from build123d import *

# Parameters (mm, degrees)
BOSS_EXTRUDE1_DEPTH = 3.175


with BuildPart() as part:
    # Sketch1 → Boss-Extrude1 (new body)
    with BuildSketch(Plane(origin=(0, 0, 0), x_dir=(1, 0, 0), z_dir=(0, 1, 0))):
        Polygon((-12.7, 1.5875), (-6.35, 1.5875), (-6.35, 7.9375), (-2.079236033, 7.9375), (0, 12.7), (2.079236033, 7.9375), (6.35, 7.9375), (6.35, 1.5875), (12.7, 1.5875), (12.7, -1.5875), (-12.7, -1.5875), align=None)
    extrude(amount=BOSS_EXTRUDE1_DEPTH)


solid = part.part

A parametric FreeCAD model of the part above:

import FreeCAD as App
import Part
import Sketcher
from FreeCAD import Vector
Q = App.Units.Quantity

doc = App.newDocument("Part")
body = doc.addObject("PartDesign::Body", "Body")

# Sketch on XZ plane
sketch1 = doc.addObject("Sketcher::SketchObject", "Sketch")
body.addObject(sketch1)
sketch1.AttachmentSupport = (doc.XZ_Plane, [""])
sketch1.MapMode = "FlatFace"
sketch1.addGeometry([
    Part.LineSegment(Vector(-6.3, -1.6, 0), Vector(-12.7, -1.6, 0)),  # 0
    Part.LineSegment(Vector(-12.7, -1.6, 0), Vector(-12.7, 1.6, 0)),  # 1
    Part.LineSegment(Vector(-12.7, 1.6, 0), Vector(12.7, 1.6, 0)),  # 2
    Part.LineSegment(Vector(12.7, 1.6, 0), Vector(12.7, -1.6, 0)),  # 3
    Part.LineSegment(Vector(12.7, -1.6, 0), Vector(6.3, -1.6, 0)),  # 4
    Part.LineSegment(Vector(6.3, -1.6, 0), Vector(6.3, -7.9, 0)),  # 5
    Part.LineSegment(Vector(6.3, -7.9, 0), Vector(2.1, -7.9, 0)),  # 6
    Part.LineSegment(Vector(2.1, -7.9, 0), Vector(0, -12.7, 0)),  # 7
    Part.LineSegment(Vector(0, -12.7, 0), Vector(-2.1, -7.9, 0)),  # 8
    Part.LineSegment(Vector(-2.1, -7.9, 0), Vector(-6.3, -7.9, 0)),  # 9
    Part.LineSegment(Vector(-6.3, -7.9, 0), Vector(-6.3, -1.6, 0)),  # 10
], False)
sketch1.addConstraint([
    Sketcher.Constraint("Coincident", 0, 2, 1, 1),
    Sketcher.Constraint("Coincident", 1, 2, 2, 1),
    Sketcher.Constraint("Coincident", 2, 2, 3, 1),
    Sketcher.Constraint("Coincident", 3, 2, 4, 1),
    Sketcher.Constraint("Coincident", 4, 2, 5, 1),
    Sketcher.Constraint("Coincident", 5, 2, 6, 1),
    Sketcher.Constraint("Coincident", 6, 2, 7, 1),
    Sketcher.Constraint("Coincident", 7, 2, 8, 1),
    Sketcher.Constraint("Coincident", 8, 2, 9, 1),
    Sketcher.Constraint("Coincident", 9, 2, 10, 1),
    Sketcher.Constraint("Coincident", 10, 2, 0, 1),
    Sketcher.Constraint("Horizontal", 0),
    Sketcher.Constraint("Vertical", 1),
    Sketcher.Constraint("Horizontal", 2),
    Sketcher.Constraint("Vertical", 3),
    Sketcher.Constraint("Horizontal", 4),
    Sketcher.Constraint("Vertical", 5),
    Sketcher.Constraint("Horizontal", 6),
    Sketcher.Constraint("Horizontal", 9),
    Sketcher.Constraint("Vertical", 10),
    Sketcher.Constraint("Symmetric", 0, 2, 2, 2, -1, 1),
    Sketcher.Constraint("Symmetric", 6, 2, 8, 2, -2),
    Sketcher.Constraint("Symmetric", 4, 2, 10, 2, -2),
    Sketcher.Constraint("PointOnObject", 7, 2, -2),
    Sketcher.Constraint("Equal", 4, 5),
    Sketcher.Constraint("DistanceX", 2, 1, 2, 2, Q("1 in")),
    Sketcher.Constraint("DistanceX", 0, 2, 0, 1, Q("0.25 in")),
    Sketcher.Constraint("DistanceY", 7, 2, -1, 1, Q("0.5 in")),
    Sketcher.Constraint("DistanceY", 1, 1, 1, 2, Q("0.125 in")),
    Sketcher.Constraint("DistanceX", 6, 2, 6, 1, 4.270764),
])
pad1 = doc.addObject("PartDesign::Pad", "Pad")
body.addObject(pad1)
pad1.Profile = sketch1
pad1.Length = Q("0.125 in")
pad1.Reversed = True

doc.recompute()
